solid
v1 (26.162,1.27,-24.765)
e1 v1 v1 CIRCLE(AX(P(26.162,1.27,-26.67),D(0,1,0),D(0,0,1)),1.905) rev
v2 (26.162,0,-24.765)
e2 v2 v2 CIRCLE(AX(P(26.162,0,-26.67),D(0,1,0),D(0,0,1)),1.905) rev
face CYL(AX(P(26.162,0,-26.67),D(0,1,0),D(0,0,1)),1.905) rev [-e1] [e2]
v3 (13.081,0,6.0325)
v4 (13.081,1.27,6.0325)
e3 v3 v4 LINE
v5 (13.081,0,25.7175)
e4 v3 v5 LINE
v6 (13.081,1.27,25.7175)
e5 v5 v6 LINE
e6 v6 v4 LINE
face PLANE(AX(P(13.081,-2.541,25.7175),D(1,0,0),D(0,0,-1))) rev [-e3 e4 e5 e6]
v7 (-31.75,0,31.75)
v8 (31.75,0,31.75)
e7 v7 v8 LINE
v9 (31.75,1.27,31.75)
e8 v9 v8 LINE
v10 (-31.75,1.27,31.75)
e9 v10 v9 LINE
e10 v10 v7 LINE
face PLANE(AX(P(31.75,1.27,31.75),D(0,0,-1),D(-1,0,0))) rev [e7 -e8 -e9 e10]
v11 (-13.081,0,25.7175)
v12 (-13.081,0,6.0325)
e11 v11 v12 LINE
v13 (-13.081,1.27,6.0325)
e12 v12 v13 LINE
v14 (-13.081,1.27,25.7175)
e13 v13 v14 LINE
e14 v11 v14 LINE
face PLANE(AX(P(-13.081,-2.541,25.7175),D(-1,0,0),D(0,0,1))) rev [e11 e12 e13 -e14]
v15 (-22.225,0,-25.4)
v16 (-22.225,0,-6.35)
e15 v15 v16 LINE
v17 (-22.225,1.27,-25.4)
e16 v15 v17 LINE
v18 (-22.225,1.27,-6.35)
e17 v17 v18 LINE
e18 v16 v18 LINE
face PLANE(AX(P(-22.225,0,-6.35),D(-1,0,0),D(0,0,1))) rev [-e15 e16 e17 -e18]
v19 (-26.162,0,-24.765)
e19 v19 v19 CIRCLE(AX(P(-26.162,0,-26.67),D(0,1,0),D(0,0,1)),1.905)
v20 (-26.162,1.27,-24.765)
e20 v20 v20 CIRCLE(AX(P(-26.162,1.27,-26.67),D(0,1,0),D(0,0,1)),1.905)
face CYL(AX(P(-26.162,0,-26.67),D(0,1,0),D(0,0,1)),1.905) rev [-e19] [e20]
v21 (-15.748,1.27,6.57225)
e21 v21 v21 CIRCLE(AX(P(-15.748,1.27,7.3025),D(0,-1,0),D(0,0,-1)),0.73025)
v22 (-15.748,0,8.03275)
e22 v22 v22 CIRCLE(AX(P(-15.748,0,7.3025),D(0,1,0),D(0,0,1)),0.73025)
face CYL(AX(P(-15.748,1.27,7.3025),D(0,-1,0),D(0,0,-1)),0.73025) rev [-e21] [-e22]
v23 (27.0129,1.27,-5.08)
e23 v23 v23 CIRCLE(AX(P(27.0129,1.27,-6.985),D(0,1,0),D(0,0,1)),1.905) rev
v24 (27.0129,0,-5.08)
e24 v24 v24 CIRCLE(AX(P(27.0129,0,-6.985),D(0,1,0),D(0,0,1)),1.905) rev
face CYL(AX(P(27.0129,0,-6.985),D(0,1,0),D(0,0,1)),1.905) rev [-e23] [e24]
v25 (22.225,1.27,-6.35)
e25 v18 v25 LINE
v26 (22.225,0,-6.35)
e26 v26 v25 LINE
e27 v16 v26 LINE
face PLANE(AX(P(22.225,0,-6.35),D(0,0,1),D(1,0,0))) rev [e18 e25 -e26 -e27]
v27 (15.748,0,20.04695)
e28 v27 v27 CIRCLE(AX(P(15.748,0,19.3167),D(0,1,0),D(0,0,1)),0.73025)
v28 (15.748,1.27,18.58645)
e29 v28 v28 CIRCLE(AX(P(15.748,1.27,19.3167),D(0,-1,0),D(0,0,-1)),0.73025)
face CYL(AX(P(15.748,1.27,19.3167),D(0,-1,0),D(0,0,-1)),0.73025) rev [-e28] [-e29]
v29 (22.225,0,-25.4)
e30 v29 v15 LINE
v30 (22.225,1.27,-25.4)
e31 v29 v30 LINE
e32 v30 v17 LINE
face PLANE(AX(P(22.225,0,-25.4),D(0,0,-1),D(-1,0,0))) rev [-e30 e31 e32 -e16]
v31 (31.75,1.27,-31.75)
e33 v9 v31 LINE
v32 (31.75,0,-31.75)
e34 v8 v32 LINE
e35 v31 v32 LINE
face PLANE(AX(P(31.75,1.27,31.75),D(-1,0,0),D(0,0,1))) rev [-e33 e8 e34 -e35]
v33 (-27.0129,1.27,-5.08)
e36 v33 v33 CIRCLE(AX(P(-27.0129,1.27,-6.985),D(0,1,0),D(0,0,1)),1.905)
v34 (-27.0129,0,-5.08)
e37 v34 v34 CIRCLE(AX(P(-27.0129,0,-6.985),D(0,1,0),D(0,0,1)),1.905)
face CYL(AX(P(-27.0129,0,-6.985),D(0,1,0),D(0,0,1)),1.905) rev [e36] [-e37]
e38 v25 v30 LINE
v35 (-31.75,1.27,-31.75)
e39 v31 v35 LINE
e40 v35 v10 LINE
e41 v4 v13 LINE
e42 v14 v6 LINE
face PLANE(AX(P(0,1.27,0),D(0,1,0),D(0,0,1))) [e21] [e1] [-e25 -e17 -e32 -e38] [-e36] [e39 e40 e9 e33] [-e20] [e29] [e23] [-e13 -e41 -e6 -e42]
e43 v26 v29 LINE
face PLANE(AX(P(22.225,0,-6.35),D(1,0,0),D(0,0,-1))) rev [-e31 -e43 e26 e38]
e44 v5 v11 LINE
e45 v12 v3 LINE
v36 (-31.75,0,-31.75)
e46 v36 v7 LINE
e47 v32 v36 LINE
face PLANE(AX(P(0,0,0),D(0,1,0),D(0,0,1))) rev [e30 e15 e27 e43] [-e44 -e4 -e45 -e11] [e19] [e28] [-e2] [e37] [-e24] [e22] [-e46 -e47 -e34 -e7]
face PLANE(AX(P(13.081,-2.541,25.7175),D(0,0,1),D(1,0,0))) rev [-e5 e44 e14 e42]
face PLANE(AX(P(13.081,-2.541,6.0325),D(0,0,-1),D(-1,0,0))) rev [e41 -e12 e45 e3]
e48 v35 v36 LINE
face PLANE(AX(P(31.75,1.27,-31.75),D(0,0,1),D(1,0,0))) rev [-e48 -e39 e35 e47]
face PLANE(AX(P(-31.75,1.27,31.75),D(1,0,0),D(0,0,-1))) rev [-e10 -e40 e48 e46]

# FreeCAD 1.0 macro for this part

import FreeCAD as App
import Part
import Sketcher
Q = App.Units.Quantity


def add_polygon(sketch, points):
    """Adds a closed chain of lines whose ends are joined by coincident constraints."""
    first, n = sketch.GeometryCount, len(points)
    for a, b in zip(points, points[1:] + points[:1]):
        sketch.addGeometry(Part.LineSegment(App.Vector(*a, 0), App.Vector(*b, 0)), False)
    for i in range(n):
        sketch.addConstraint(Sketcher.Constraint("Coincident", first + i, 2, first + (i + 1) % n, 1))

doc = App.newDocument("Part")
body = doc.addObject("PartDesign::Body", "Body")

sketch1 = body.newObject("Sketcher::SketchObject", "Sketch")
sketch1.AttachmentSupport = (doc.getObject("XZ_Plane"), [""])
sketch1.MapMode = "FlatFace"
add_polygon(sketch1, [(-32, -32), (-32, 32), (32, 32), (32, -32)])
sketch1.addConstraint([
    Sketcher.Constraint("Vertical", 0),
    Sketcher.Constraint("Horizontal", 1),
    Sketcher.Constraint("Vertical", 2),
    Sketcher.Constraint("Horizontal", 3),
    Sketcher.Constraint("Symmetric", 0, 2, 2, 2, -1, 1),
    Sketcher.Constraint("Equal", 3, 0),
    Sketcher.Constraint("DistanceX", 1, 1, 1, 2, Q("2.5 in")),
])
pad1 = body.newObject("PartDesign::Pad", "Pad")
pad1.Profile = sketch1
pad1.Length = Q("0.05 in")
pad1.Reversed = True

sketch2 = body.newObject("Sketcher::SketchObject", "Sketch001")
sketch2.AttachmentSupport = (doc.getObject("XZ_Plane"), [""])
sketch2.MapMode = "FlatFace"
sketch2.AttachmentOffset = App.Placement(App.Vector(0, 0, -0.05 * 25.4), App.Rotation())
sketch2.addGeometry([
    Part.Circle(App.Vector(27, -7, 0), App.Vector(0, 0, 1), 1.9),
    Part.Circle(App.Vector(26.2, -26.7, 0), App.Vector(0, 0, 1), 1.9),
    Part.Circle(App.Vector(-27, -7, 0), App.Vector(0, 0, 1), 1.9),
    Part.Circle(App.Vector(-26.2, -26.7, 0), App.Vector(0, 0, 1), 1.9),
], False)
sketch2.addConstraint([
    Sketcher.Constraint("Equal", 0, 1),
    Sketcher.Constraint("Equal", 1, 2),
    Sketcher.Constraint("Equal", 2, 3),
    Sketcher.Constraint("Symmetric", 0, 3, 2, 3, -2),
    Sketcher.Constraint("Symmetric", 1, 3, 3, 3, -2),
    Sketcher.Constraint("Diameter", 0, Q("0.15 in")),
    Sketcher.Constraint("DistanceX", -1, 1, 1, 3, Q("1.03 in")),
    Sketcher.Constraint("DistanceY", 1, 3, -1, 1, Q("1.05 in")),
    Sketcher.Constraint("DistanceY", 0, 3, -1, 1, Q("0.275 in")),
    Sketcher.Constraint("DistanceX", 2, 3, 0, 3, Q("2.127 in")),
])
pocket1 = body.newObject("PartDesign::Pocket", "Pocket")
pocket1.Profile = sketch2
pocket1.Length = Q("0.05 in")
pocket1.Reversed = True

sketch3 = body.newObject("Sketcher::SketchObject", "Sketch002")
sketch3.AttachmentSupport = (doc.getObject("XZ_Plane"), [""])
sketch3.MapMode = "FlatFace"
sketch3.AttachmentOffset = App.Placement(App.Vector(0, 0, -0.05 * 25.4), App.Rotation())
add_polygon(sketch3, [(-22, -25), (-22, -6), (22, -6), (22, -25)])
sketch3.addConstraint([
    Sketcher.Constraint("Vertical", 0),
    Sketcher.Constraint("Horizontal", 1),
    Sketcher.Constraint("Vertical", 2),
    Sketcher.Constraint("Horizontal", 3),
    Sketcher.Constraint("DistanceY", 2, 2, -1, 1, Q("1 in")),
    Sketcher.Constraint("DistanceX", 1, 1, 1, 2, Q("1.75 in")),
    Sketcher.Constraint("DistanceY", 0, 1, 0, 2, Q("0.75 in")),
    Sketcher.Constraint("DistanceX", 0, 2, -1, 1, Q("0.875 in")),
])
pocket2 = body.newObject("PartDesign::Pocket", "Pocket001")
pocket2.Profile = sketch3
pocket2.Length = Q("0.05 in")
pocket2.Reversed = True

sketch4 = body.newObject("Sketcher::SketchObject", "Sketch003")
sketch4.AttachmentSupport = (doc.getObject("XZ_Plane"), [""])
sketch4.MapMode = "FlatFace"
sketch4.AttachmentOffset = App.Placement(App.Vector(0, 0, -0.05 * 25.4), App.Rotation())
sketch4.addGeometry([
    Part.Circle(App.Vector(-15.7, 7.3, 0), App.Vector(0, 0, 1), 0.7),
    Part.Circle(App.Vector(15.7, 19.3, 0), App.Vector(0, 0, 1), 0.7),
], False)
sketch4.addConstraint([
    Sketcher.Constraint("Equal", 0, 1),
    Sketcher.Constraint("Diameter", 0, Q("0.0575 in")),
    Sketcher.Constraint("DistanceX", 0, 3, -1, 1, Q("0.62 in")),
    Sketcher.Constraint("DistanceX", -1, 1, 1, 3, Q("0.62 in")),
    Sketcher.Constraint("DistanceY", 0, 3, 1, 3, Q("0.473 in")),
    Sketcher.Constraint("DistanceY", -1, 1, 0, 3, Q("0.2875 in")),
])
pad2 = body.newObject("PartDesign::Pad", "Pad001")
pad2.Profile = sketch4
pad2.Length = Q("0.15 in")

sketch5 = body.newObject("Sketcher::SketchObject", "Sketch004")
sketch5.AttachmentSupport = (doc.getObject("XZ_Plane"), [""])
sketch5.MapMode = "FlatFace"
sketch5.AttachmentOffset = App.Placement(App.Vector(0, 0, -0.05 * 25.4), App.Rotation())
add_polygon(sketch5, [(-13, 6), (-13, 26), (13, 26), (13, 6)])
sketch5.addConstraint([
    Sketcher.Constraint("Vertical", 0),
    Sketcher.Constraint("Horizontal", 1),
    Sketcher.Constraint("Vertical", 2),
    Sketcher.Constraint("Horizontal", 3),
    Sketcher.Constraint("DistanceX", 1, 1, 1, 2, Q("1.03 in")),
    Sketcher.Constraint("DistanceY", 0, 1, 0, 2, Q("0.775 in")),
    Sketcher.Constraint("DistanceX", 0, 2, -1, 1, Q("0.515 in")),
    Sketcher.Constraint("DistanceY", -1, 1, 0, 2, Q("1.0125 in")),
])
pocket3 = body.newObject("PartDesign::Pocket", "Pocket002")
pocket3.Profile = sketch5
pocket3.Type = "UpToFirst"
pocket3.Reversed = True

sketch6 = body.newObject("Sketcher::SketchObject", "Sketch005")
sketch6.AttachmentSupport = (doc.getObject("XZ_Plane"), [""])
sketch6.MapMode = "FlatFace"
sketch6.AttachmentOffset = App.Placement(App.Vector(0, 0, 0.1 * 25.4), App.Rotation())
sketch6.addGeometry([
    Part.Circle(App.Vector(15.7, 19.3, 0), App.Vector(0, 0, 1), 0.7),
    Part.Circle(App.Vector(-15.7, 7.3, 0), App.Vector(0, 0, 1), 0.7),
], False)
sketch6.addConstraint([
    Sketcher.Constraint("Equal", 0, 1),
    Sketcher.Constraint("Diameter", 0, Q("0.0575 in")),
    Sketcher.Constraint("DistanceX", -1, 1, 0, 3, Q("0.62 in")),
    Sketcher.Constraint("DistanceX", 1, 3, -1, 1, Q("0.62 in")),
    Sketcher.Constraint("DistanceY", 1, 3, 0, 3, Q("0.473 in")),
    Sketcher.Constraint("DistanceY", -1, 1, 0, 3, Q("0.7605 in")),
])
pocket4 = body.newObject("PartDesign::Pocket", "Pocket003")
pocket4.Profile = sketch6
pocket4.Type = "ThroughAll"

doc.recompute()
